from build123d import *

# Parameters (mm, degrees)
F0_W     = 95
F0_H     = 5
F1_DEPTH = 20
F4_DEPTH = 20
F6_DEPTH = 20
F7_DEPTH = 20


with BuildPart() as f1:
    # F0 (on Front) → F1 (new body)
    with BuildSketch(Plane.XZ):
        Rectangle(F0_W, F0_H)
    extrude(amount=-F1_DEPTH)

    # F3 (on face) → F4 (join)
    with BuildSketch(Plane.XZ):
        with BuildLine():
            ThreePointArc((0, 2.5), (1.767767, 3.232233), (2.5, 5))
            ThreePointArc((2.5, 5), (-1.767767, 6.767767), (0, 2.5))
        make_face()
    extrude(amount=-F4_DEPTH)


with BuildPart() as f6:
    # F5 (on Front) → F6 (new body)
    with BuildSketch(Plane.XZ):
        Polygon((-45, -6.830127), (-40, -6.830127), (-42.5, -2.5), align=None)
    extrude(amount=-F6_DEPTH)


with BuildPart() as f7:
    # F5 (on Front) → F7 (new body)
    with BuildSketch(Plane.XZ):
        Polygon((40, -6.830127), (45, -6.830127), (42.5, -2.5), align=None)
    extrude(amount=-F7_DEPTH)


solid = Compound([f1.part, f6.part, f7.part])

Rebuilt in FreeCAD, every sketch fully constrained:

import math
import FreeCAD as App
import Part
import Sketcher
from FreeCAD import Vector
Q = App.Units.Quantity

doc = App.newDocument("Part")
body = doc.addObject("PartDesign::Body", "Body")
body.AllowCompound = True

sketch1 = body.newObject("Sketcher::SketchObject", "Sketch")
sketch1.AttachmentSupport = (doc.getObject("XZ_Plane"), [""])
sketch1.MapMode = "FlatFace"
sketch1.addGeometry(Part.LineSegment(Vector(-48, 2, 0), Vector(-48, -2, 0)), False)
sketch1.addGeometry(Part.LineSegment(Vector(-48, -2, 0), Vector(48, -2, 0)), False)
sketch1.addGeometry(Part.LineSegment(Vector(48, -2, 0), Vector(48, 2, 0)), False)
sketch1.addGeometry(Part.LineSegment(Vector(48, 2, 0), Vector(-48, 2, 0)), False)
sketch1.addConstraint(Sketcher.Constraint("Coincident", 0, 2, 1, 1))
sketch1.addConstraint(Sketcher.Constraint("Coincident", 1, 2, 2, 1))
sketch1.addConstraint(Sketcher.Constraint("Coincident", 2, 2, 3, 1))
sketch1.addConstraint(Sketcher.Constraint("Coincident", 3, 2, 0, 1))
sketch1.addConstraint(Sketcher.Constraint("Vertical", 0))
sketch1.addConstraint(Sketcher.Constraint("Horizontal", 1))
sketch1.addConstraint(Sketcher.Constraint("Vertical", 2))
sketch1.addConstraint(Sketcher.Constraint("Horizontal", 3))
sketch1.addConstraint(Sketcher.Constraint("Symmetric", 0, 2, 2, 2, -1, 1))
sketch1.addConstraint(Sketcher.Constraint("DistanceX", 1, 1, 1, 2, Q("95 mm")))
sketch1.addConstraint(Sketcher.Constraint("DistanceY", 0, 2, 0, 1, Q("5 mm")))
pad1 = body.newObject("PartDesign::Pad", "Pad")
pad1.Profile = sketch1
pad1.Length = 20
pad1.Reversed = True

sketch2 = body.newObject("Sketcher::SketchObject", "Sketch001")
sketch2.AttachmentSupport = (doc.getObject("XZ_Plane"), [""])
sketch2.MapMode = "FlatFace"
sketch2.addGeometry(Part.ArcOfCircle(Part.Circle(Vector(0, 5, 0), Vector(0, 0, 1), 2.5), math.radians(-90), math.radians(0)), False)
sketch2.addGeometry(Part.ArcOfCircle(Part.Circle(Vector(0, 5, 0), Vector(0, 0, 1), 2.5), math.radians(0), math.radians(270)), False)
sketch2.addConstraint(Sketcher.Constraint("Tangent", 0, 1, 1, 2))
sketch2.addConstraint(Sketcher.Constraint("Coincident", 1, 1, 0, 2))
sketch2.addConstraint(Sketcher.Constraint("PointOnObject", 0, 3, -2))
sketch2.addConstraint(Sketcher.Constraint("PointOnObject", 0, 1, -2))
sketch2.addConstraint(Sketcher.Constraint("Horizontal", 0, 3, 1, 1))
sketch2.addConstraint(Sketcher.Constraint("Radius", 0, Q("2.5 mm")))
sketch2.addConstraint(Sketcher.Constraint("DistanceY", -1, 1, 0, 3, Q("5 mm")))
pad2 = body.newObject("PartDesign::Pad", "Pad001")
pad2.Profile = sketch2
pad2.Length = 20
pad2.Reversed = True
body2 = doc.addObject("PartDesign::Body", "Body001")

sketch3 = body2.newObject("Sketcher::SketchObject", "Sketch002")
sketch3.AttachmentSupport = (doc.getObject("XZ_Plane001"), [""])
sketch3.MapMode = "FlatFace"
sketch3.addGeometry(Part.LineSegment(Vector(-45, -6.8, 0), Vector(-40, -6.8, 0)), False)
sketch3.addGeometry(Part.LineSegment(Vector(-40, -6.8, 0), Vector(-42.5, -2.5, 0)), False)
sketch3.addGeometry(Part.LineSegment(Vector(-42.5, -2.5, 0), Vector(-45, -6.8, 0)), False)
sketch3.addConstraint(Sketcher.Constraint("Coincident", 0, 2, 1, 1))
sketch3.addConstraint(Sketcher.Constraint("Coincident", 1, 2, 2, 1))
sketch3.addConstraint(Sketcher.Constraint("Coincident", 2, 2, 0, 1))
sketch3.addConstraint(Sketcher.Constraint("Horizontal", 0))
sketch3.addConstraint(Sketcher.Constraint("Equal", 1, 2))
sketch3.addConstraint(Sketcher.Constraint("DistanceX", 0, 1, 0, 2, Q("5 mm")))
sketch3.addConstraint(Sketcher.Constraint("Angle", 1, Q("120 deg")))
sketch3.addConstraint(Sketcher.Constraint("DistanceX", 0, 2, -1, 1, Q("40 mm")))
sketch3.addConstraint(Sketcher.Constraint("DistanceY", 1, 2, -1, 1, Q("2.5 mm")))
pad3 = body2.newObject("PartDesign::Pad", "Pad002")
pad3.Profile = sketch3
pad3.Length = 20
pad3.Reversed = True
body3 = doc.addObject("PartDesign::Body", "Body002")

sketch4 = body3.newObject("Sketcher::SketchObject", "Sketch003")
sketch4.AttachmentSupport = (doc.getObject("XZ_Plane002"), [""])
sketch4.MapMode = "FlatFace"
sketch4.addGeometry(Part.LineSegment(Vector(40, -6.8, 0), Vector(45, -6.8, 0)), False)
sketch4.addGeometry(Part.LineSegment(Vector(45, -6.8, 0), Vector(42.5, -2.5, 0)), False)
sketch4.addGeometry(Part.LineSegment(Vector(42.5, -2.5, 0), Vector(40, -6.8, 0)), False)
sketch4.addConstraint(Sketcher.Constraint("Coincident", 0, 2, 1, 1))
sketch4.addConstraint(Sketcher.Constraint("Coincident", 1, 2, 2, 1))
sketch4.addConstraint(Sketcher.Constraint("Coincident", 2, 2, 0, 1))
sketch4.addConstraint(Sketcher.Constraint("Horizontal", 0))
sketch4.addConstraint(Sketcher.Constraint("Equal", 1, 2))
sketch4.addConstraint(Sketcher.Constraint("DistanceX", 0, 1, 0, 2, Q("5 mm")))
sketch4.addConstraint(Sketcher.Constraint("Angle", 1, Q("120 deg")))
sketch4.addConstraint(Sketcher.Constraint("DistanceX", -1, 1, 0, 2, Q("45 mm")))
sketch4.addConstraint(Sketcher.Constraint("DistanceY", 1, 2, -1, 1, Q("2.5 mm")))
pad4 = body3.newObject("PartDesign::Pad", "Pad003")
pad4.Profile = sketch4
pad4.Length = 20
pad4.Reversed = True

doc.recompute()
